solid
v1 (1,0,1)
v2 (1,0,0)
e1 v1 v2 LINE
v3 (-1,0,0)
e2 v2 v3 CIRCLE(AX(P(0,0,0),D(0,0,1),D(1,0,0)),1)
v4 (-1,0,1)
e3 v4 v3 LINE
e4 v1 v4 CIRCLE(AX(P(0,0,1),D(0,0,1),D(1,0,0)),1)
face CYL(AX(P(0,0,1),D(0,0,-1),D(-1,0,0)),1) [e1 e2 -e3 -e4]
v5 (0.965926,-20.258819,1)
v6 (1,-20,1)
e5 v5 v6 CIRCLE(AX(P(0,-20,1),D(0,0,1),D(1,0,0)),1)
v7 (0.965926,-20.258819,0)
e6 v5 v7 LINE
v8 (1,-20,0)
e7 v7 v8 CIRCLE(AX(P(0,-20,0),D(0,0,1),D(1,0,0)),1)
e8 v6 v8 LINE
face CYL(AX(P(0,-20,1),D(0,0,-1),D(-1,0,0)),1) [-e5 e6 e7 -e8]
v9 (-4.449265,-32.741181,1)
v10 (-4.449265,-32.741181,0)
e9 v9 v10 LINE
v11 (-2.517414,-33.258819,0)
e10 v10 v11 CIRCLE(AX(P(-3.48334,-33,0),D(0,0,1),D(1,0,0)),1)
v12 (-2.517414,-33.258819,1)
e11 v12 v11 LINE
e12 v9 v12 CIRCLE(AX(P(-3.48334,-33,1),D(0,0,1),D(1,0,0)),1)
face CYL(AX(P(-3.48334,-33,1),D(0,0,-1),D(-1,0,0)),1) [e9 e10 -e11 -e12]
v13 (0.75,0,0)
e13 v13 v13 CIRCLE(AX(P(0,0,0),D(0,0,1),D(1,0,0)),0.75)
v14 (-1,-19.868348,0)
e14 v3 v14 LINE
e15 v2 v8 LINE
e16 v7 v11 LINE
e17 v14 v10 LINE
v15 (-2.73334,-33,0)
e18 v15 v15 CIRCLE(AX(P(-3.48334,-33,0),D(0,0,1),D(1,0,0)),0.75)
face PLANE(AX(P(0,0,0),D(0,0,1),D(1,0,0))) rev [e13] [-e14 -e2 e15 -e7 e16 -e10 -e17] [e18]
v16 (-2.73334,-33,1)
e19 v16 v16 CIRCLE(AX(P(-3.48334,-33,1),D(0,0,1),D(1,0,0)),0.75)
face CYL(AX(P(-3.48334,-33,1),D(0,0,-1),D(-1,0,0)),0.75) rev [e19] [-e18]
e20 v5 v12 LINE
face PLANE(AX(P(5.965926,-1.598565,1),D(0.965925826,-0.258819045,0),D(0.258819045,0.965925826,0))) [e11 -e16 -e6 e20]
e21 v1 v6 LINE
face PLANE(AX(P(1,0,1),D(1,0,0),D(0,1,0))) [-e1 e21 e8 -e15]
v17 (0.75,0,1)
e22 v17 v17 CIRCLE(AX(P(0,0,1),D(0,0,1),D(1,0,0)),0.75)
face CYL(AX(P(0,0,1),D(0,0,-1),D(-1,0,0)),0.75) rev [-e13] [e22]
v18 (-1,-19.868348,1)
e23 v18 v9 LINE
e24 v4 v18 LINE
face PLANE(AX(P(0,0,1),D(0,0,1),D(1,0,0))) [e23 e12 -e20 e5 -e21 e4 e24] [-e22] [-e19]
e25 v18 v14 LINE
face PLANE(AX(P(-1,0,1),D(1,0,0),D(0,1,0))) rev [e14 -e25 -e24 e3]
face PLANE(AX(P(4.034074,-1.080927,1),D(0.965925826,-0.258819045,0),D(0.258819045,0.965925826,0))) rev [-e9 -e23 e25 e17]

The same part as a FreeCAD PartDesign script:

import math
import FreeCAD as App
import Part
import Sketcher
Q = App.Units.Quantity

doc = App.newDocument("Part")
body = doc.addObject("PartDesign::Body", "Body")

# Sketch on XY plane
sketch1 = body.newObject("Sketcher::SketchObject", "Sketch")
sketch1.AttachmentSupport = (doc.getObject("XY_Plane"), [""])
sketch1.MapMode = "FlatFace"
sketch1.addGeometry([
    Part.LineSegment(App.Vector(-2.52, -33.26, 0), App.Vector(0.97, -20.26, 0)),  # 0
    Part.ArcOfCircle(Part.Circle(App.Vector(0, -20, 0), App.Vector(0, 0, 1), 1), math.radians(-15), math.radians(0)),  # 1
    Part.LineSegment(App.Vector(1, -20, 0), App.Vector(1, 0, 0)),  # 2
    Part.ArcOfCircle(Part.Circle(App.Vector(0, 0, 0), App.Vector(0, 0, 1), 1), math.radians(0), math.radians(180)),  # 3
    Part.LineSegment(App.Vector(-1, 0, 0), App.Vector(-1, -19.87, 0)),  # 4
    Part.LineSegment(App.Vector(-1, -19.87, 0), App.Vector(-4.45, -32.74, 0)),  # 5
    Part.ArcOfCircle(Part.Circle(App.Vector(-3.48, -33, 0), App.Vector(0, 0, 1), 1), math.radians(165), math.radians(345)),  # 6
    Part.Circle(App.Vector(-3.48, -33, 0), App.Vector(0, 0, 1), 0.75),  # 7
    Part.Circle(App.Vector(0, 0, 0), App.Vector(0, 0, 1), 0.75),  # 8
], False)
sketch1.addConstraint([
    Sketcher.Constraint("Tangent", 0, 2, 1, 1),
    Sketcher.Constraint("Tangent", 1, 2, 2, 1),
    Sketcher.Constraint("Tangent", 2, 2, 3, 1),
    Sketcher.Constraint("Tangent", 3, 2, 4, 1),
    Sketcher.Constraint("Coincident", 4, 2, 5, 1),
    Sketcher.Constraint("Tangent", 5, 2, 6, 1),
    Sketcher.Constraint("Tangent", 6, 2, 0, 1),
    Sketcher.Constraint("Vertical", 2),
    Sketcher.Constraint("Vertical", 4),
    Sketcher.Constraint("Coincident", 3, 3, -1, 1),
    Sketcher.Constraint("Coincident", 8, 3, -1, 1),
    Sketcher.Constraint("Coincident", 7, 3, 6, 3),
    Sketcher.Constraint("Equal", 1, 3),
    Sketcher.Constraint("Equal", 3, 6),
    Sketcher.Constraint("Equal", 7, 8),
    Sketcher.Constraint("Parallel", 0, 5),
    Sketcher.Constraint("Radius", 1, 1.0),
    Sketcher.Constraint("Diameter", 7, 1.5),
    Sketcher.Constraint("DistanceY", 2, 1, 2, 2, 20.0),
    Sketcher.Constraint("Angle", 0, Q("75 deg")),
    Sketcher.Constraint("DistanceY", 6, 3, -1, 1, 33.0),
])
pad1 = body.newObject("PartDesign::Pad", "Pad")
pad1.Profile = sketch1
pad1.Length = 1

doc.recompute()
